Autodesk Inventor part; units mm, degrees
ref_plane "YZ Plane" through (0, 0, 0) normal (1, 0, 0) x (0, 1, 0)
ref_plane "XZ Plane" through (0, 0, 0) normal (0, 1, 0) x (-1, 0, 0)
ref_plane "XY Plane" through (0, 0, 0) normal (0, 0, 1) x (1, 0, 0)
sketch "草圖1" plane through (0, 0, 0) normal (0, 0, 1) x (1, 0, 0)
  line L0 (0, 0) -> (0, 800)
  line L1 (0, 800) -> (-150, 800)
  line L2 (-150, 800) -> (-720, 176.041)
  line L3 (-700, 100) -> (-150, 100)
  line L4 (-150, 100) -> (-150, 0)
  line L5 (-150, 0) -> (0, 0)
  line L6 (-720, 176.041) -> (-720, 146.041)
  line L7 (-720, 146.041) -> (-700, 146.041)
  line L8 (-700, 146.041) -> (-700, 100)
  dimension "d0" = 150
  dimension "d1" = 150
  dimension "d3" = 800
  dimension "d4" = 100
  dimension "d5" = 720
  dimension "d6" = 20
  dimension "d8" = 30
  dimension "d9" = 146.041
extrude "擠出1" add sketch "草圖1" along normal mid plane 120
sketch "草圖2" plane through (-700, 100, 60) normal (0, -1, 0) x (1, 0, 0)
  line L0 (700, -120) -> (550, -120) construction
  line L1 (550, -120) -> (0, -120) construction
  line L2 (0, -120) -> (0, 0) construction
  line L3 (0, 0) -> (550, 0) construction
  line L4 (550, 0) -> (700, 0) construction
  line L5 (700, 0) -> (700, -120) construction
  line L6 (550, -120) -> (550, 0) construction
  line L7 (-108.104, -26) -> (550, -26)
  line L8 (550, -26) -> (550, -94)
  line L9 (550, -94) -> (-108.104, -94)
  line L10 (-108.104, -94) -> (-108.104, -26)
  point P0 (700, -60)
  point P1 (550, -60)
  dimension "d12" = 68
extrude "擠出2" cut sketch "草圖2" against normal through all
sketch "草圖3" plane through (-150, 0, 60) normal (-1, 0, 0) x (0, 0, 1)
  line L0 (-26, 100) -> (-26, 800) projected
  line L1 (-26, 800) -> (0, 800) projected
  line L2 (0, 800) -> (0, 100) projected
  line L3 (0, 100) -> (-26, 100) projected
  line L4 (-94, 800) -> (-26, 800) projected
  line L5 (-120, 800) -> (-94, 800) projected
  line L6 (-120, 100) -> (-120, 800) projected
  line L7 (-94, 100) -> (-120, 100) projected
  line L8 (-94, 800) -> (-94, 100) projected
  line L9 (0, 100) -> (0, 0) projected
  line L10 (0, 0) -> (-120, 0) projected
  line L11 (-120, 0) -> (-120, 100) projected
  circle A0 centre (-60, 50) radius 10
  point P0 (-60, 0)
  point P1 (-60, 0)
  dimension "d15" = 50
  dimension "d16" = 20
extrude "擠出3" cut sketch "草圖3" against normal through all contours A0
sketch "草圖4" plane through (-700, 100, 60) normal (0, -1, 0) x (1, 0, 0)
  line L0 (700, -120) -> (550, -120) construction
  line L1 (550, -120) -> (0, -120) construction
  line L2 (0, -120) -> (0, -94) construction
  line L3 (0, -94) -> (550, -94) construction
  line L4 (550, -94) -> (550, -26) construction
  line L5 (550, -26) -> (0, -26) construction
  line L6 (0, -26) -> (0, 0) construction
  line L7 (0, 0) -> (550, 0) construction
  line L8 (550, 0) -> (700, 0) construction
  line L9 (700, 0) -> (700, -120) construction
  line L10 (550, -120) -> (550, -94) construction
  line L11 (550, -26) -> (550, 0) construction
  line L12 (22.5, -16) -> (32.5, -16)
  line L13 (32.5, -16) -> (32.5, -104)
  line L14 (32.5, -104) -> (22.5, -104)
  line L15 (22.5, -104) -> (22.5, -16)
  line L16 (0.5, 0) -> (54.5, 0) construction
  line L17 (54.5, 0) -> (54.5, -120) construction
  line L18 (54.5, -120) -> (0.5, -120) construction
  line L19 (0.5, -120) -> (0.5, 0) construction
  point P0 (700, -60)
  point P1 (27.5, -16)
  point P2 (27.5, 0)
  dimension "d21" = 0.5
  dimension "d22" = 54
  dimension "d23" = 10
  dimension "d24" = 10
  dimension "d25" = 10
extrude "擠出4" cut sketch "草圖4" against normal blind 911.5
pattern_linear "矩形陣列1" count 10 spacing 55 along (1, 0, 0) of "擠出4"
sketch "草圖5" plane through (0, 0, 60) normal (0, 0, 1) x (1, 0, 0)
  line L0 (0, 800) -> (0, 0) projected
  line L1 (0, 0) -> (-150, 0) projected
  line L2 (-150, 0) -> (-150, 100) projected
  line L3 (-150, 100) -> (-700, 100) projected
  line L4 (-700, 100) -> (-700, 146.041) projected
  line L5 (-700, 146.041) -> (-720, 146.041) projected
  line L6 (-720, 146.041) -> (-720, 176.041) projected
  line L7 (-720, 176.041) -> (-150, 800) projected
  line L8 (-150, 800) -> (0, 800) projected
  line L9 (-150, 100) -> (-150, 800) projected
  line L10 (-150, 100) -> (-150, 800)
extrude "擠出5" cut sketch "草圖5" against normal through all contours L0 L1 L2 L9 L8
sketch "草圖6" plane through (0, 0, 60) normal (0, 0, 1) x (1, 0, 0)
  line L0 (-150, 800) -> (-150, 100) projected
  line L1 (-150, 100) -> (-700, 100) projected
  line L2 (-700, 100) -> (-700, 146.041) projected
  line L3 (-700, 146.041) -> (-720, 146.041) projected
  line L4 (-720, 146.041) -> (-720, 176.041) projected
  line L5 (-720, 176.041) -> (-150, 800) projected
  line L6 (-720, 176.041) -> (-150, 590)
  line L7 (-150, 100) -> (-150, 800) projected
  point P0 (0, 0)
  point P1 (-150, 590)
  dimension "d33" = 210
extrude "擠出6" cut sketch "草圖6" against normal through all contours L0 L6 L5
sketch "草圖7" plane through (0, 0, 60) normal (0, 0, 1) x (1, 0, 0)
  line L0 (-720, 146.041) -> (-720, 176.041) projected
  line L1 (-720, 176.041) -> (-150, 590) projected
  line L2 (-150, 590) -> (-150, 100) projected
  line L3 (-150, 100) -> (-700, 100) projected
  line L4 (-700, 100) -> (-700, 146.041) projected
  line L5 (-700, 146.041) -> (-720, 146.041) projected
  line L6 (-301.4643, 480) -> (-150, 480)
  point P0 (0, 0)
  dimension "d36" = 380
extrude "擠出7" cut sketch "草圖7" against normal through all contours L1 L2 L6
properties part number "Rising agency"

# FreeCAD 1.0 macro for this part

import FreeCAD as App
import Part
import Sketcher
Q = App.Units.Quantity


def add_polygon(sketch, points):
    """Adds a closed chain of lines whose ends are joined by coincident constraints."""
    first, n = sketch.GeometryCount, len(points)
    for a, b in zip(points, points[1:] + points[:1]):
        sketch.addGeometry(Part.LineSegment(App.Vector(*a, 0), App.Vector(*b, 0)), False)
    for i in range(n):
        sketch.addConstraint(Sketcher.Constraint("Coincident", first + i, 2, first + (i + 1) % n, 1))

doc = App.newDocument("Part")
body = doc.addObject("PartDesign::Body", "Body")
body.AllowCompound = True

# Sketch on XY plane
sketch1 = body.newObject("Sketcher::SketchObject", "Sketch")
sketch1.AttachmentSupport = (doc.getObject("XY_Plane"), [""])
sketch1.MapMode = "FlatFace"
add_polygon(sketch1, [(-150, 0), (0, 0), (0, 800), (-150, 800), (-720, 176), (-720, 146), (-700, 146), (-700, 100), (-150, 100)])  # lines 0-8
sketch1.addConstraint([
    Sketcher.Constraint("Horizontal", 0),
    Sketcher.Constraint("Vertical", 1),
    Sketcher.Constraint("Horizontal", 2),
    Sketcher.Constraint("Vertical", 4),
    Sketcher.Constraint("Horizontal", 5),
    Sketcher.Constraint("Vertical", 6),
    Sketcher.Constraint("Horizontal", 7),
    Sketcher.Constraint("Vertical", 8),
    Sketcher.Constraint("Coincident", 0, 2, -1, 1),
    Sketcher.Constraint("Vertical", 2, 2, 7, 2),
    Sketcher.Constraint("DistanceX", 0, 1, 0, 2, Q("150 mm")),
    Sketcher.Constraint("DistanceX", 5, 1, 5, 2, Q("20 mm")),
    Sketcher.Constraint("DistanceY", 1, 1, 1, 2, Q("800 mm")),
    Sketcher.Constraint("DistanceY", 4, 2, 4, 1, Q("30 mm")),
    Sketcher.Constraint("DistanceY", 8, 2, 8, 1, Q("100 mm")),
    Sketcher.Constraint("DistanceX", 3, 2, -1, 1, Q("720 mm")),
    Sketcher.Constraint("DistanceY", -1, 1, 4, 2, Q("146.041 mm")),
])
pad1 = body.newObject("PartDesign::Pad", "Pad")
pad1.Profile = sketch1
pad1.Length = 120
pad1.Midplane = True

# Sketch on XZ plane
sketch2 = body.newObject("Sketcher::SketchObject", "Sketch001")
sketch2.AttachmentSupport = (doc.getObject("XZ_Plane"), [""])
sketch2.MapMode = "FlatFace"
sketch2.AttachmentOffset = App.Placement(App.Vector(0, 0, -100), App.Rotation())
add_polygon(sketch2, [(-150, 34), (-808, 34), (-808, -34), (-150, -34)])  # lines 0-3
sketch2.addConstraint([
    Sketcher.Constraint("Horizontal", 0),
    Sketcher.Constraint("Vertical", 1),
    Sketcher.Constraint("Horizontal", 2),
    Sketcher.Constraint("Vertical", 3),
    Sketcher.Constraint("DistanceY", 1, 2, 1, 1, Q("68 mm")),
    Sketcher.Constraint("DistanceY", -1, 1, 0, 2, Q("34 mm")),
    Sketcher.Constraint("DistanceX", 2, 2, -1, 1, Q("150 mm")),
    Sketcher.Constraint("DistanceX", 0, 2, 0, 1, Q("658.104 mm")),
])
pocket1 = body.newObject("PartDesign::Pocket", "Pocket")
pocket1.Profile = sketch2
pocket1.Type = "ThroughAll"

# Sketch on YZ plane
sketch3 = body.newObject("Sketcher::SketchObject", "Sketch002")
sketch3.AttachmentSupport = (doc.getObject("YZ_Plane"), [""])
sketch3.MapMode = "FlatFace"
sketch3.AttachmentOffset = App.Placement(App.Vector(0, 0, -150), App.Rotation())
sketch3.addGeometry(Part.Circle(App.Vector(50, 0, 0), App.Vector(0, 0, 1), 10), False)
sketch3.addConstraint([
    Sketcher.Constraint("PointOnObject", 0, 3, -1),
    Sketcher.Constraint("Diameter", 0, Q("20 mm")),
    Sketcher.Constraint("DistanceX", -1, 1, 0, 3, Q("50 mm")),
])
pocket2 = body.newObject("PartDesign::Pocket", "Pocket001")
pocket2.Profile = sketch3
pocket2.Type = "ThroughAll"
pocket2.Reversed = True

# Sketch on XZ plane
sketch4 = body.newObject("Sketcher::SketchObject", "Sketch003")
sketch4.AttachmentSupport = (doc.getObject("XZ_Plane"), [""])
sketch4.MapMode = "FlatFace"
sketch4.AttachmentOffset = App.Placement(App.Vector(0, 0, -100), App.Rotation())
add_polygon(sketch4, [(-668, 44), (-678, 44), (-678, -44), (-668, -44)])  # lines 0-3
sketch4.addConstraint([
    Sketcher.Constraint("Horizontal", 0),
    Sketcher.Constraint("Vertical", 1),
    Sketcher.Constraint("Horizontal", 2),
    Sketcher.Constraint("Vertical", 3),
    Sketcher.Constraint("DistanceX", 0, 2, 0, 1, Q("10 mm")),
    Sketcher.Constraint("DistanceY", 1, 2, 1, 1, Q("88 mm")),
    Sketcher.Constraint("DistanceY", -1, 1, 0, 2, Q("44 mm")),
    Sketcher.Constraint("DistanceX", 0, 2, -1, 1, Q("677.5 mm")),
])
pocket3 = body.newObject("PartDesign::Pocket", "Pocket002")
pocket3.Profile = sketch4
pocket3.Length = 911.5
doc.recompute()

linearpattern = body.newObject("PartDesign::LinearPattern", "LinearPattern")
linearpattern.Originals = [pocket3]
linearpattern.Direction = (doc.getObject("X_Axis"), [""])
linearpattern.Mode = "offset"
linearpattern.Offset = 55
linearpattern.Occurrences = 10
body.Tip = linearpattern

# Sketch on XY plane
sketch5 = body.newObject("Sketcher::SketchObject", "Sketch004")
sketch5.AttachmentSupport = (doc.getObject("XY_Plane"), [""])
sketch5.MapMode = "FlatFace"
sketch5.AttachmentOffset = App.Placement(App.Vector(0, 0, 60), App.Rotation())
add_polygon(sketch5, [(0, 0), (0, 800), (-150, 800), (-150, 0)])  # lines 0-3
sketch5.addConstraint([
    Sketcher.Constraint("Vertical", 0),
    Sketcher.Constraint("Horizontal", 1),
    Sketcher.Constraint("Vertical", 2),
    Sketcher.Constraint("Horizontal", 3),
    Sketcher.Constraint("Coincident", 3, 2, -1, 1),
    Sketcher.Constraint("DistanceX", 1, 2, 1, 1, Q("150 mm")),
    Sketcher.Constraint("DistanceY", 0, 1, 0, 2, Q("800 mm")),
])
pocket4 = body.newObject("PartDesign::Pocket", "Pocket003")
pocket4.Profile = sketch5
pocket4.Type = "ThroughAll"

# Sketch on XY plane
sketch6 = body.newObject("Sketcher::SketchObject", "Sketch005")
sketch6.AttachmentSupport = (doc.getObject("XY_Plane"), [""])
sketch6.MapMode = "FlatFace"
sketch6.AttachmentOffset = App.Placement(App.Vector(0, 0, 60), App.Rotation())
add_polygon(sketch6, [(-150, 590), (-150, 800), (-720, 176)])  # lines 0-2
sketch6.addConstraint([
    Sketcher.Constraint("Vertical", 0),
    Sketcher.Constraint("DistanceY", 0, 1, 0, 2, Q("210 mm")),
    Sketcher.Constraint("DistanceX", 0, 2, -1, 1, Q("150 mm")),
    Sketcher.Constraint("DistanceY", -1, 1, 0, 2, Q("800 mm")),
    Sketcher.Constraint("DistanceX", 1, 2, -1, 1, Q("720 mm")),
    Sketcher.Constraint("DistanceY", -1, 1, 1, 2, Q("176.041 mm")),
])
pocket5 = body.newObject("PartDesign::Pocket", "Pocket004")
pocket5.Profile = sketch6
pocket5.Type = "ThroughAll"

# Sketch on XY plane
sketch7 = body.newObject("Sketcher::SketchObject", "Sketch006")
sketch7.AttachmentSupport = (doc.getObject("XY_Plane"), [""])
sketch7.MapMode = "FlatFace"
sketch7.AttachmentOffset = App.Placement(App.Vector(0, 0, 60), App.Rotation())
add_polygon(sketch7, [(-150, 590), (-301, 480), (-150, 480)])  # lines 0-2
sketch7.addConstraint([
    Sketcher.Constraint("Horizontal", 1),
    Sketcher.Constraint("Vertical", 2),
    Sketcher.Constraint("DistanceY", 2, 1, 2, 2, Q("110 mm")),
    Sketcher.Constraint("DistanceY", -1, 1, 0, 2, Q("480 mm")),
    Sketcher.Constraint("DistanceX", 1, 2, -1, 1, Q("150 mm")),
    Sketcher.Constraint("DistanceX", 1, 1, 1, 2, Q("151.4643 mm")),
])
pocket6 = body.newObject("PartDesign::Pocket", "Pocket005")
pocket6.Profile = sketch7
pocket6.Type = "ThroughAll"

doc.recompute()
